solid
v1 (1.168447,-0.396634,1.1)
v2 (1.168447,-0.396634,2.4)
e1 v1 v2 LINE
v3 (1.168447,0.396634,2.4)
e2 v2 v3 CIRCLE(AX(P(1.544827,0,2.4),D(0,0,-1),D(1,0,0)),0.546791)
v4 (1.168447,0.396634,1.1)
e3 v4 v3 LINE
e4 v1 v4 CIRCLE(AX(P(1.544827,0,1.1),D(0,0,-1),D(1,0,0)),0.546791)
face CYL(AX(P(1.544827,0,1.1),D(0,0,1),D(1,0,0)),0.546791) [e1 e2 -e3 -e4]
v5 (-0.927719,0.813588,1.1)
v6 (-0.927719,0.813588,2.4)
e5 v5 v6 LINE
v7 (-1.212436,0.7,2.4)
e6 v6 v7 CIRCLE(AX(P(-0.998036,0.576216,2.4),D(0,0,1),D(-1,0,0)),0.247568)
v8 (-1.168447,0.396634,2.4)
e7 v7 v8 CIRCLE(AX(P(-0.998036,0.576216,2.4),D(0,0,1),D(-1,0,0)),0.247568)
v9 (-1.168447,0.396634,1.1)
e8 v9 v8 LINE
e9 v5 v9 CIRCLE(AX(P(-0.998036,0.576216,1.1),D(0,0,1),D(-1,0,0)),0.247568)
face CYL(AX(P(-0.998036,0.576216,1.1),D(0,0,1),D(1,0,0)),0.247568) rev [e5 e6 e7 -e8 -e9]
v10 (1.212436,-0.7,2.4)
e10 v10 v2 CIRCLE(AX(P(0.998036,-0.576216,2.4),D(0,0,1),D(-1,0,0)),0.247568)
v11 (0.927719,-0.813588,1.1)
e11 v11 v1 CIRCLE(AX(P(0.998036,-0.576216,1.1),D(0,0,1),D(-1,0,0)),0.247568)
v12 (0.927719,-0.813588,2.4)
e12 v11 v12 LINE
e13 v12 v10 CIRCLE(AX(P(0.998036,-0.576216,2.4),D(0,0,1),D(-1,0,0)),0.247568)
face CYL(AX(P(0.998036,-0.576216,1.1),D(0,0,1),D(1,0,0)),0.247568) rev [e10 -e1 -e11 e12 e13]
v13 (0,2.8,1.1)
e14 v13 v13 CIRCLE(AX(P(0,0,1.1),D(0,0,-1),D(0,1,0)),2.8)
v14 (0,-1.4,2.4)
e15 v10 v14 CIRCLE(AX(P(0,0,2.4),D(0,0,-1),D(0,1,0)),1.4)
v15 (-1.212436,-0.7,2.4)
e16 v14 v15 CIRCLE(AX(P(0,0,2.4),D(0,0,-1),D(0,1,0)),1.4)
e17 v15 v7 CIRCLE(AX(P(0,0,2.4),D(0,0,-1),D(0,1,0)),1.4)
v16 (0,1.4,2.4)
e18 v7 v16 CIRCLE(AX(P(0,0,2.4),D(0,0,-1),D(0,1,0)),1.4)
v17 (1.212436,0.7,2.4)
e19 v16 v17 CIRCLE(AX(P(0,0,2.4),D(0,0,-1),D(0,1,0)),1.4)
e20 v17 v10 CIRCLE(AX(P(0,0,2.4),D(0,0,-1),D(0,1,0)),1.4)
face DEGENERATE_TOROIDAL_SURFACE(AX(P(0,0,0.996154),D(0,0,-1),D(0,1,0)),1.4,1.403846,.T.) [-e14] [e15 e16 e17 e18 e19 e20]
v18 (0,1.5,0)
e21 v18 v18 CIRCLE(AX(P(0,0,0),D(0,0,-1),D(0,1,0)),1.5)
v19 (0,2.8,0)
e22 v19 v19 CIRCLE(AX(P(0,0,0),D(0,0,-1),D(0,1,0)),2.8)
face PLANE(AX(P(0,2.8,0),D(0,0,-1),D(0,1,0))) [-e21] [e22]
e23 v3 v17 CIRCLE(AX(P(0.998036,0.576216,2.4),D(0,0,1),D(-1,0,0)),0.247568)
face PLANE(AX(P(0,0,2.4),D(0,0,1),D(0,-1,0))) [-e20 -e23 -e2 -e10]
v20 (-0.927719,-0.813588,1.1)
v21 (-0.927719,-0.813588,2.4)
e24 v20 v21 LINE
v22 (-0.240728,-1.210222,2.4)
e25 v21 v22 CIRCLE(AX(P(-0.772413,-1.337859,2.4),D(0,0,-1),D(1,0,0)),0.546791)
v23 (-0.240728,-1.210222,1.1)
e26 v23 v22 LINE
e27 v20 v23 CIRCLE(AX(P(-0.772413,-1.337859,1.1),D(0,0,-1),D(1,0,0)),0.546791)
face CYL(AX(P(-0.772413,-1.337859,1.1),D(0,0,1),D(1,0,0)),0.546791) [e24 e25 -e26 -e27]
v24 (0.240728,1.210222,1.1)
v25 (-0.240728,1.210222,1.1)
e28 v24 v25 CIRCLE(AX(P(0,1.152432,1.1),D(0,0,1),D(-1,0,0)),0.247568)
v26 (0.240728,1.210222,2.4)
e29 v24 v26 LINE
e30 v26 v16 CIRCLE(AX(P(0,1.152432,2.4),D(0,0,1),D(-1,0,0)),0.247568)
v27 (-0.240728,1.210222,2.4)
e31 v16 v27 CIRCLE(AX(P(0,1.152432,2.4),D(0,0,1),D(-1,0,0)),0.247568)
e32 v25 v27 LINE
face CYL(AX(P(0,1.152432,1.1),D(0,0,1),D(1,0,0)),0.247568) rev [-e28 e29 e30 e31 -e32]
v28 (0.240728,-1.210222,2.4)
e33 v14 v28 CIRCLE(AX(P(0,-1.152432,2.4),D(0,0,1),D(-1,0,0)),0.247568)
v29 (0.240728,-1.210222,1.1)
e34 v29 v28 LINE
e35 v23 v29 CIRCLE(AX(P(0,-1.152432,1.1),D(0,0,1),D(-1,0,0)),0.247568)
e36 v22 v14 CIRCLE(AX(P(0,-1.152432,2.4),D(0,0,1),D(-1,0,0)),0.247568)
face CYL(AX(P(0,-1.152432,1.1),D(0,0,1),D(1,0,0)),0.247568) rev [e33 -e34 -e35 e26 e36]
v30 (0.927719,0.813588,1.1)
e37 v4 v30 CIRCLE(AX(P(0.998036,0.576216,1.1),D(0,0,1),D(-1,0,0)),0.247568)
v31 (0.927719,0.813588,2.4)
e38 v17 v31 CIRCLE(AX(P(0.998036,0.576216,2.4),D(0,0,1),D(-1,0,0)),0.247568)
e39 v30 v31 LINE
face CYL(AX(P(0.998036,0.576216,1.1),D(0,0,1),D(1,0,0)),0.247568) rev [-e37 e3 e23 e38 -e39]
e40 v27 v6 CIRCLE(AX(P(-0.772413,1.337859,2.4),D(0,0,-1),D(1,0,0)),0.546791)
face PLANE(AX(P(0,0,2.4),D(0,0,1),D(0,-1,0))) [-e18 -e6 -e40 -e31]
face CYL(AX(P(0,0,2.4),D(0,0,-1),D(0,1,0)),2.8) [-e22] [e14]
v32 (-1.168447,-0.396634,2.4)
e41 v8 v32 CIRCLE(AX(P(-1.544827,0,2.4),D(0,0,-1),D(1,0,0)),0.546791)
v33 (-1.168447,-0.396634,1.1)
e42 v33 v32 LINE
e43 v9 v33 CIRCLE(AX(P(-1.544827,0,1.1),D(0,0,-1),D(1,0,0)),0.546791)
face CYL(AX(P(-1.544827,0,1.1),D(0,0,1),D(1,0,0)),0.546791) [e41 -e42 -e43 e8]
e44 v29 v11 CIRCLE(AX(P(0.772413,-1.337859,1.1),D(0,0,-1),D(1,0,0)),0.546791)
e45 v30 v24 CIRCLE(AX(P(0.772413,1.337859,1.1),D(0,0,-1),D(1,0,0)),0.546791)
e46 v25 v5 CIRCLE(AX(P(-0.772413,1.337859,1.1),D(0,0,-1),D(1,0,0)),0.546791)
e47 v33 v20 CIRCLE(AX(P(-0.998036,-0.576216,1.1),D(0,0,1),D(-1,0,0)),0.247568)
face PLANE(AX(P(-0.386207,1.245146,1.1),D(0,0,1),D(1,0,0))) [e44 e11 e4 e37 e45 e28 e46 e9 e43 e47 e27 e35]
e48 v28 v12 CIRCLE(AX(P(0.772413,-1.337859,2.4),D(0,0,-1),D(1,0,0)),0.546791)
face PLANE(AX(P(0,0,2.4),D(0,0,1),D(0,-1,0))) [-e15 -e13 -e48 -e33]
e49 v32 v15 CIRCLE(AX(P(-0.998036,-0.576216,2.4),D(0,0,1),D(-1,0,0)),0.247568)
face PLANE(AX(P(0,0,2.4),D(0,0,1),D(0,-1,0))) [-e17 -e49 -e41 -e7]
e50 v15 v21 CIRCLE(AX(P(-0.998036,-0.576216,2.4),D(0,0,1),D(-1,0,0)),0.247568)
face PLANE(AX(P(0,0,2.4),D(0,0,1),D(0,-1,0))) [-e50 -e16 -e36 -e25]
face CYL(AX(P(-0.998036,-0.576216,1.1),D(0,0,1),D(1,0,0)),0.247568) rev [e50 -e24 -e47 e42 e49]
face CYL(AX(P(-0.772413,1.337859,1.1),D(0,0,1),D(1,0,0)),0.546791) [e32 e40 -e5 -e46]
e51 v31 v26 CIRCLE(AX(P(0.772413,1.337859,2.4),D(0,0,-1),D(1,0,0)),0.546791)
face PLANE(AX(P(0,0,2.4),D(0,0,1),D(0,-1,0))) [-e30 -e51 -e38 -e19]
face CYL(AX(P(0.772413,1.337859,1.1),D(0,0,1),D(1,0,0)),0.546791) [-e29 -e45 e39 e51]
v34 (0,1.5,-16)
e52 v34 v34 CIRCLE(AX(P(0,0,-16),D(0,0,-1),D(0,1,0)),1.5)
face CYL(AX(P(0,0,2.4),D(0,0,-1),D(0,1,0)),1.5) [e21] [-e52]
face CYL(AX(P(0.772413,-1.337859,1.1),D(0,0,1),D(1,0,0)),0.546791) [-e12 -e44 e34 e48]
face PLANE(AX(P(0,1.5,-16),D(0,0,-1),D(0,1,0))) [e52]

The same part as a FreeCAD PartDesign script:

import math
import FreeCAD as App
import Part
import Sketcher

V = App.Vector

doc = App.newDocument("Part")
params = doc.addObject("Spreadsheet::Sheet", "Params")
for row, (alias, value) in enumerate([
    ("sketch1_height", "16 mm"),
    ("sketch1_width", "1.4 mm"),
    ("sketch1_width2", "1.5 mm"),
    ("sketch1_width3", "1.3 mm"),
    ("sketch1_height2", "18.4 mm"),
    ("revolution_angle", "360 deg"),
    ("pocket1_length", "1.3 mm"),
], start=1):
    params.set(f"A{row}", alias)
    params.set(f"B{row}", "=" + value)
    params.setAlias(f"B{row}", alias)

body = doc.addObject("PartDesign::Body", "Body")

sketch1 = doc.addObject("Sketcher::SketchObject", "Sketch")
body.addObject(sketch1)
sketch1.AttachmentSupport = (doc.YZ_Plane, [""])
sketch1.MapMode = "FlatFace"
sketch1.addGeometry(Part.LineSegment(V(1.4, 2.4, 0), V(0, 2.4, 0)), False)
sketch1.addGeometry(Part.LineSegment(V(0, 2.4, 0), V(0, -16, 0)), False)
sketch1.addGeometry(Part.LineSegment(V(0, -16, 0), V(1.5, -16, 0)), False)
sketch1.addGeometry(Part.LineSegment(V(1.5, -16, 0), V(1.5, 0, 0)), False)
sketch1.addGeometry(Part.LineSegment(V(1.5, 0, 0), V(2.8, 0, 0)), False)
sketch1.addGeometry(Part.LineSegment(V(2.8, 0, 0), V(2.8, 1.1, 0)), False)
sketch1.addGeometry(Part.ArcOfCircle(Part.Circle(V(1.4, 1, 0), V(0, 0, 1), 1.4), math.radians(4), math.radians(90)), False)
sketch1.addConstraint(Sketcher.Constraint("Coincident", 0, 2, 1, 1))
sketch1.addConstraint(Sketcher.Constraint("Coincident", 1, 2, 2, 1))
sketch1.addConstraint(Sketcher.Constraint("Coincident", 2, 2, 3, 1))
sketch1.addConstraint(Sketcher.Constraint("Coincident", 3, 2, 4, 1))
sketch1.addConstraint(Sketcher.Constraint("Coincident", 4, 2, 5, 1))
sketch1.addConstraint(Sketcher.Constraint("Coincident", 5, 2, 6, 1))
sketch1.addConstraint(Sketcher.Constraint("Tangent", 6, 2, 0, 1))
sketch1.addConstraint(Sketcher.Constraint("Horizontal", 0))
sketch1.addConstraint(Sketcher.Constraint("Vertical", 1))
sketch1.addConstraint(Sketcher.Constraint("Horizontal", 2))
sketch1.addConstraint(Sketcher.Constraint("Vertical", 3))
sketch1.addConstraint(Sketcher.Constraint("Horizontal", 4))
sketch1.addConstraint(Sketcher.Constraint("Vertical", 5))
sketch1.addConstraint(Sketcher.Constraint("PointOnObject", 0, 2, -2))
sketch1.addConstraint(Sketcher.Constraint("PointOnObject", 3, 2, -1))
sketch1.addConstraint(Sketcher.Constraint("DistanceY", 3, 1, 3, 2, 16.0))
sketch1.addConstraint(Sketcher.Constraint("DistanceX", 0, 2, 0, 1, 1.4))
sketch1.addConstraint(Sketcher.Constraint("DistanceX", 2, 1, 2, 2, 1.5))
sketch1.addConstraint(Sketcher.Constraint("DistanceX", 4, 1, 4, 2, 1.3))
sketch1.addConstraint(Sketcher.Constraint("DistanceY", 1, 2, 1, 1, 18.4))
sketch1.addConstraint(Sketcher.Constraint("DistanceY", 5, 1, 5, 2, 1.1))
sketch1.setExpression("Constraints[15]", "Params.sketch1_height")
sketch1.setExpression("Constraints[16]", "Params.sketch1_width")
sketch1.setExpression("Constraints[17]", "Params.sketch1_width2")
sketch1.setExpression("Constraints[18]", "Params.sketch1_width3")
sketch1.setExpression("Constraints[19]", "Params.sketch1_height2")
revolution = doc.addObject("PartDesign::Revolution", "Revolution")
body.addObject(revolution)
revolution.Profile = sketch1
revolution.ReferenceAxis = (sketch1, ["V_Axis"])
revolution.setExpression("Angle", "Params.revolution_angle")

sketch2 = doc.addObject("Sketcher::SketchObject", "Sketch001")
body.addObject(sketch2)
sketch2.AttachmentSupport = (doc.XY_Plane, [""])
sketch2.MapMode = "FlatFace"
sketch2.AttachmentOffset = App.Placement(V(0, 0, 2.4), App.Rotation())
sketch2.addGeometry(Part.ArcOfCircle(Part.Circle(V(0, 1.15, 0), V(0, 0, 1), 0.25), math.radians(13), math.radians(167)), False)
sketch2.addGeometry(Part.ArcOfCircle(Part.Circle(V(-0.77, 1.34, 0), V(0, 0, 1), 0.55), math.radians(-107), math.radians(-13)), False)
sketch2.addGeometry(Part.ArcOfCircle(Part.Circle(V(-1, 0.58, 0), V(0, 0, 1), 0.25), math.radians(73), math.radians(227)), False)
sketch2.addGeometry(Part.ArcOfCircle(Part.Circle(V(-1.54, 0, 0), V(0, 0, 1), 0.55), math.radians(-47), math.radians(47)), False)
sketch2.addGeometry(Part.ArcOfCircle(Part.Circle(V(-1, -0.58, 0), V(0, 0, 1), 0.25), math.radians(133), math.radians(287)), False)
sketch2.addGeometry(Part.ArcOfCircle(Part.Circle(V(-0.77, -1.34, 0), V(0, 0, 1), 0.55), math.radians(13), math.radians(107)), False)
sketch2.addGeometry(Part.ArcOfCircle(Part.Circle(V(0, -1.15, 0), V(0, 0, 1), 0.25), math.radians(-167), math.radians(-13)), False)
sketch2.addGeometry(Part.ArcOfCircle(Part.Circle(V(0.77, -1.34, 0), V(0, 0, 1), 0.55), math.radians(73), math.radians(167)), False)
sketch2.addGeometry(Part.ArcOfCircle(Part.Circle(V(1, -0.58, 0), V(0, 0, 1), 0.25), math.radians(-107), math.radians(47)), False)
sketch2.addGeometry(Part.ArcOfCircle(Part.Circle(V(1.54, 0, 0), V(0, 0, 1), 0.55), math.radians(133), math.radians(227)), False)
sketch2.addGeometry(Part.ArcOfCircle(Part.Circle(V(1, 0.58, 0), V(0, 0, 1), 0.25), math.radians(-47), math.radians(107)), False)
sketch2.addGeometry(Part.ArcOfCircle(Part.Circle(V(0.77, 1.34, 0), V(0, 0, 1), 0.55), math.radians(-167), math.radians(-73)), False)
sketch2.addConstraint(Sketcher.Constraint("Tangent", 0, 2, 1, 2))
sketch2.addConstraint(Sketcher.Constraint("Tangent", 1, 1, 2, 1))
sketch2.addConstraint(Sketcher.Constraint("Tangent", 2, 2, 3, 2))
sketch2.addConstraint(Sketcher.Constraint("Tangent", 3, 1, 4, 1))
sketch2.addConstraint(Sketcher.Constraint("Tangent", 4, 2, 5, 2))
sketch2.addConstraint(Sketcher.Constraint("Tangent", 5, 1, 6, 1))
sketch2.addConstraint(Sketcher.Constraint("Tangent", 6, 2, 7, 2))
sketch2.addConstraint(Sketcher.Constraint("Tangent", 7, 1, 8, 1))
sketch2.addConstraint(Sketcher.Constraint("Tangent", 8, 2, 9, 2))
sketch2.addConstraint(Sketcher.Constraint("Tangent", 9, 1, 10, 1))
sketch2.addConstraint(Sketcher.Constraint("Tangent", 10, 2, 11, 2))
sketch2.addConstraint(Sketcher.Constraint("Tangent", 11, 1, 0, 1))
sketch2.addConstraint(Sketcher.Constraint("Equal", 0, 2))
sketch2.addConstraint(Sketcher.Constraint("Equal", 1, 3))
sketch2.addConstraint(Sketcher.Constraint("Equal", 2, 4))
sketch2.addConstraint(Sketcher.Constraint("Equal", 3, 5))
sketch2.addConstraint(Sketcher.Constraint("Equal", 4, 6))
sketch2.addConstraint(Sketcher.Constraint("Equal", 5, 7))
sketch2.addConstraint(Sketcher.Constraint("Equal", 6, 8))
sketch2.addConstraint(Sketcher.Constraint("Equal", 7, 9))
sketch2.addConstraint(Sketcher.Constraint("Equal", 8, 10))
sketch2.addConstraint(Sketcher.Constraint("Equal", 9, 11))
sketch2.addConstraint(Sketcher.Constraint("Symmetric", 0, 3, 6, 3, -1, 1))
sketch2.addConstraint(Sketcher.Constraint("Symmetric", 2, 3, 8, 3, -1, 1))
sketch2.addConstraint(Sketcher.Constraint("Symmetric", 4, 3, 10, 3, -1, 1))
sketch2.addConstraint(Sketcher.Constraint("Symmetric", 5, 3, 7, 3, -2))
sketch2.addConstraint(Sketcher.Constraint("PointOnObject", 3, 3, -1))
sketch2.addConstraint(Sketcher.Constraint("Radius", 1, 0.546791))
sketch2.addConstraint(Sketcher.Constraint("Radius", 0, 0.247568))
sketch2.addConstraint(Sketcher.Constraint("DistanceY", -1, 1, 1, 3, 1.337859))
sketch2.addConstraint(Sketcher.Constraint("DistanceX", 0, 2, -1, 1, 0.240728))
sketch2.addConstraint(Sketcher.Constraint("DistanceX", 1, 1, -1, 1, 0.927719))
pocket1 = doc.addObject("PartDesign::Pocket", "Pocket")
body.addObject(pocket1)
pocket1.Profile = sketch2
pocket1.setExpression("Length", "Params.pocket1_length")

doc.recompute()
